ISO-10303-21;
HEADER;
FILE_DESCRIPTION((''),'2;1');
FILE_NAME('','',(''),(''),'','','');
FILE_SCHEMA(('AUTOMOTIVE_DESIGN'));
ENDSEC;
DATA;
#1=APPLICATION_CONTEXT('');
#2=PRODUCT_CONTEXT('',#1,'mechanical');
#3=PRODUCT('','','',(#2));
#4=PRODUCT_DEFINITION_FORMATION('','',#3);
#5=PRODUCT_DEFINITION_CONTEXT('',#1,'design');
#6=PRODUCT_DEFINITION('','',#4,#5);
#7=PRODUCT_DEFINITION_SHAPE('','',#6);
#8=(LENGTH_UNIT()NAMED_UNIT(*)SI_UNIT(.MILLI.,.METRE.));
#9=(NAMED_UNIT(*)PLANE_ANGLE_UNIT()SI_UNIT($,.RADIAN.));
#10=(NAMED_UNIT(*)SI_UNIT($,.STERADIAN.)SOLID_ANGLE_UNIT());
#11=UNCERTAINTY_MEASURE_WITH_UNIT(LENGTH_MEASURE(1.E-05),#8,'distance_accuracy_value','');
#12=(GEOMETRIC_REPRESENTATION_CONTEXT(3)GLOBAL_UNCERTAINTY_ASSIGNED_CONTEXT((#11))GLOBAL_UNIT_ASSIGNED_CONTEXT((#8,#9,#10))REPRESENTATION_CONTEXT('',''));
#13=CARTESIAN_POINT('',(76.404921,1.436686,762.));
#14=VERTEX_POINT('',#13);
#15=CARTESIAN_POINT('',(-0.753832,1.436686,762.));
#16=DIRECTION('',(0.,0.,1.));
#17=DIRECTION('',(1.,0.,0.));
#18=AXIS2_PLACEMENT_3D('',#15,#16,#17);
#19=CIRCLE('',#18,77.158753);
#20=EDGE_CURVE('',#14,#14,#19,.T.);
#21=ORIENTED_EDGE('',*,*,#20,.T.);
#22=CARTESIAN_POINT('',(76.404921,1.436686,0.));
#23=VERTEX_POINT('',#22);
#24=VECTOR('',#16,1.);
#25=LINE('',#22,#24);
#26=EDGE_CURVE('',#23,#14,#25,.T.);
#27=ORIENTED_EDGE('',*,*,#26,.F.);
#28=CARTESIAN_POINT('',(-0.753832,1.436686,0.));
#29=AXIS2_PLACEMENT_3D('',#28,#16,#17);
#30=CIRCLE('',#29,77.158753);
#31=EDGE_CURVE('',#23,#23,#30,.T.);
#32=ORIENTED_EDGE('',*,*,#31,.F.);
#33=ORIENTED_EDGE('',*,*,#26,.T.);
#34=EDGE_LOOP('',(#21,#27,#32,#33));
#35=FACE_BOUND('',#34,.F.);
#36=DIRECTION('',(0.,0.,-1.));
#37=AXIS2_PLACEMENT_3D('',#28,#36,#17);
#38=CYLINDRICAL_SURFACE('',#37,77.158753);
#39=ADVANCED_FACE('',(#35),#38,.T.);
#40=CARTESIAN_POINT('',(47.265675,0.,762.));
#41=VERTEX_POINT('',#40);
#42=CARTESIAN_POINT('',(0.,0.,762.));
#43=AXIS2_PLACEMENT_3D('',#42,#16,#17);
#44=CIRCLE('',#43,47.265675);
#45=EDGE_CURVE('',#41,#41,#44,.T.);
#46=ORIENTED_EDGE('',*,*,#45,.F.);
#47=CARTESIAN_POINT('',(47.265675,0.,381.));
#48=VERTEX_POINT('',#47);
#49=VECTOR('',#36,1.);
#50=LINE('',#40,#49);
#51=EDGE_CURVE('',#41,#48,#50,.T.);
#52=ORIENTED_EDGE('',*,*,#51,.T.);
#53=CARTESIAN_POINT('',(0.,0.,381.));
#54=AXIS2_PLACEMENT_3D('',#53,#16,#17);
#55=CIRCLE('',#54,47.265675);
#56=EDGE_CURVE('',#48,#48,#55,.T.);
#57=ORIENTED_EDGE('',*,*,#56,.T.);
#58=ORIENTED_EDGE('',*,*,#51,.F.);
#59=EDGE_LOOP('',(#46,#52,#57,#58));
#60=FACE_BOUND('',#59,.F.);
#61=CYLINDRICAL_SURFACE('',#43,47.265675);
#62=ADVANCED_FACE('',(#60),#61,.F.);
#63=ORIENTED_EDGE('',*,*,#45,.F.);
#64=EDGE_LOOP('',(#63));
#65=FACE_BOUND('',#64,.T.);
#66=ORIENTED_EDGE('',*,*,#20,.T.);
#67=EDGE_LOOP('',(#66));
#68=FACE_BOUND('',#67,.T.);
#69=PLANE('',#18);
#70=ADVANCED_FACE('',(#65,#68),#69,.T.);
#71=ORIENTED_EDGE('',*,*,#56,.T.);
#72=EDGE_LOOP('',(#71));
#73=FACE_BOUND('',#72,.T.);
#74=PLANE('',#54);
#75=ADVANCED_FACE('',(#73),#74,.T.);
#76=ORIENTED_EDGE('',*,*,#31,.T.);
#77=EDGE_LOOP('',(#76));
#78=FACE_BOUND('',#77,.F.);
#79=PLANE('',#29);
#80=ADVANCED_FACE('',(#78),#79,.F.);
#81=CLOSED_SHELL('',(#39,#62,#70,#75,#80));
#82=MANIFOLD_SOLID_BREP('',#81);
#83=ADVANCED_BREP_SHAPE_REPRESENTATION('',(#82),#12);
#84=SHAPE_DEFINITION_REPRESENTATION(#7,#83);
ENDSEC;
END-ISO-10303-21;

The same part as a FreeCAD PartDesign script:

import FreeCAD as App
import Part
import Sketcher
from FreeCAD import Vector
Q = App.Units.Quantity

doc = App.newDocument("Part")
body = doc.addObject("PartDesign::Body", "Body")

sketch1 = doc.addObject("Sketcher::SketchObject", "Sketch")
body.addObject(sketch1)
sketch1.AttachmentSupport = (doc.XY_Plane, [""])
sketch1.MapMode = "FlatFace"
sketch1.addGeometry(Part.Circle(Vector(-0.753832, 1.436686, 0), Vector(0, 0, 1), 77.158753), False)
sketch1.addConstraint(Sketcher.Constraint("Diameter", 0, 154.317506))
sketch1.addConstraint(Sketcher.Constraint("DistanceX", 0, 3, -1, 1, 0.753832))
sketch1.addConstraint(Sketcher.Constraint("DistanceY", -1, 1, 0, 3, 1.436686))
pad1 = doc.addObject("PartDesign::Pad", "Pad")
body.addObject(pad1)
pad1.Profile = sketch1
pad1.Length = Q("30 in")

sketch2 = doc.addObject("Sketcher::SketchObject", "Sketch001")
body.addObject(sketch2)
sketch2.AttachmentSupport = (doc.XY_Plane, [""])
sketch2.MapMode = "FlatFace"
sketch2.AttachmentOffset = App.Placement(Vector(0, 0, 30 * 25.4), App.Rotation())
sketch2.addGeometry(Part.Circle(Vector(0, 0, 0), Vector(0, 0, 1), 47.265675), False)
sketch2.addConstraint(Sketcher.Constraint("Coincident", 0, 3, -1, 1))
sketch2.addConstraint(Sketcher.Constraint("Diameter", 0, 94.53135))
pocket1 = doc.addObject("PartDesign::Pocket", "Pocket")
body.addObject(pocket1)
pocket1.Profile = sketch2
pocket1.Length = Q("15 in")

doc.recompute()
